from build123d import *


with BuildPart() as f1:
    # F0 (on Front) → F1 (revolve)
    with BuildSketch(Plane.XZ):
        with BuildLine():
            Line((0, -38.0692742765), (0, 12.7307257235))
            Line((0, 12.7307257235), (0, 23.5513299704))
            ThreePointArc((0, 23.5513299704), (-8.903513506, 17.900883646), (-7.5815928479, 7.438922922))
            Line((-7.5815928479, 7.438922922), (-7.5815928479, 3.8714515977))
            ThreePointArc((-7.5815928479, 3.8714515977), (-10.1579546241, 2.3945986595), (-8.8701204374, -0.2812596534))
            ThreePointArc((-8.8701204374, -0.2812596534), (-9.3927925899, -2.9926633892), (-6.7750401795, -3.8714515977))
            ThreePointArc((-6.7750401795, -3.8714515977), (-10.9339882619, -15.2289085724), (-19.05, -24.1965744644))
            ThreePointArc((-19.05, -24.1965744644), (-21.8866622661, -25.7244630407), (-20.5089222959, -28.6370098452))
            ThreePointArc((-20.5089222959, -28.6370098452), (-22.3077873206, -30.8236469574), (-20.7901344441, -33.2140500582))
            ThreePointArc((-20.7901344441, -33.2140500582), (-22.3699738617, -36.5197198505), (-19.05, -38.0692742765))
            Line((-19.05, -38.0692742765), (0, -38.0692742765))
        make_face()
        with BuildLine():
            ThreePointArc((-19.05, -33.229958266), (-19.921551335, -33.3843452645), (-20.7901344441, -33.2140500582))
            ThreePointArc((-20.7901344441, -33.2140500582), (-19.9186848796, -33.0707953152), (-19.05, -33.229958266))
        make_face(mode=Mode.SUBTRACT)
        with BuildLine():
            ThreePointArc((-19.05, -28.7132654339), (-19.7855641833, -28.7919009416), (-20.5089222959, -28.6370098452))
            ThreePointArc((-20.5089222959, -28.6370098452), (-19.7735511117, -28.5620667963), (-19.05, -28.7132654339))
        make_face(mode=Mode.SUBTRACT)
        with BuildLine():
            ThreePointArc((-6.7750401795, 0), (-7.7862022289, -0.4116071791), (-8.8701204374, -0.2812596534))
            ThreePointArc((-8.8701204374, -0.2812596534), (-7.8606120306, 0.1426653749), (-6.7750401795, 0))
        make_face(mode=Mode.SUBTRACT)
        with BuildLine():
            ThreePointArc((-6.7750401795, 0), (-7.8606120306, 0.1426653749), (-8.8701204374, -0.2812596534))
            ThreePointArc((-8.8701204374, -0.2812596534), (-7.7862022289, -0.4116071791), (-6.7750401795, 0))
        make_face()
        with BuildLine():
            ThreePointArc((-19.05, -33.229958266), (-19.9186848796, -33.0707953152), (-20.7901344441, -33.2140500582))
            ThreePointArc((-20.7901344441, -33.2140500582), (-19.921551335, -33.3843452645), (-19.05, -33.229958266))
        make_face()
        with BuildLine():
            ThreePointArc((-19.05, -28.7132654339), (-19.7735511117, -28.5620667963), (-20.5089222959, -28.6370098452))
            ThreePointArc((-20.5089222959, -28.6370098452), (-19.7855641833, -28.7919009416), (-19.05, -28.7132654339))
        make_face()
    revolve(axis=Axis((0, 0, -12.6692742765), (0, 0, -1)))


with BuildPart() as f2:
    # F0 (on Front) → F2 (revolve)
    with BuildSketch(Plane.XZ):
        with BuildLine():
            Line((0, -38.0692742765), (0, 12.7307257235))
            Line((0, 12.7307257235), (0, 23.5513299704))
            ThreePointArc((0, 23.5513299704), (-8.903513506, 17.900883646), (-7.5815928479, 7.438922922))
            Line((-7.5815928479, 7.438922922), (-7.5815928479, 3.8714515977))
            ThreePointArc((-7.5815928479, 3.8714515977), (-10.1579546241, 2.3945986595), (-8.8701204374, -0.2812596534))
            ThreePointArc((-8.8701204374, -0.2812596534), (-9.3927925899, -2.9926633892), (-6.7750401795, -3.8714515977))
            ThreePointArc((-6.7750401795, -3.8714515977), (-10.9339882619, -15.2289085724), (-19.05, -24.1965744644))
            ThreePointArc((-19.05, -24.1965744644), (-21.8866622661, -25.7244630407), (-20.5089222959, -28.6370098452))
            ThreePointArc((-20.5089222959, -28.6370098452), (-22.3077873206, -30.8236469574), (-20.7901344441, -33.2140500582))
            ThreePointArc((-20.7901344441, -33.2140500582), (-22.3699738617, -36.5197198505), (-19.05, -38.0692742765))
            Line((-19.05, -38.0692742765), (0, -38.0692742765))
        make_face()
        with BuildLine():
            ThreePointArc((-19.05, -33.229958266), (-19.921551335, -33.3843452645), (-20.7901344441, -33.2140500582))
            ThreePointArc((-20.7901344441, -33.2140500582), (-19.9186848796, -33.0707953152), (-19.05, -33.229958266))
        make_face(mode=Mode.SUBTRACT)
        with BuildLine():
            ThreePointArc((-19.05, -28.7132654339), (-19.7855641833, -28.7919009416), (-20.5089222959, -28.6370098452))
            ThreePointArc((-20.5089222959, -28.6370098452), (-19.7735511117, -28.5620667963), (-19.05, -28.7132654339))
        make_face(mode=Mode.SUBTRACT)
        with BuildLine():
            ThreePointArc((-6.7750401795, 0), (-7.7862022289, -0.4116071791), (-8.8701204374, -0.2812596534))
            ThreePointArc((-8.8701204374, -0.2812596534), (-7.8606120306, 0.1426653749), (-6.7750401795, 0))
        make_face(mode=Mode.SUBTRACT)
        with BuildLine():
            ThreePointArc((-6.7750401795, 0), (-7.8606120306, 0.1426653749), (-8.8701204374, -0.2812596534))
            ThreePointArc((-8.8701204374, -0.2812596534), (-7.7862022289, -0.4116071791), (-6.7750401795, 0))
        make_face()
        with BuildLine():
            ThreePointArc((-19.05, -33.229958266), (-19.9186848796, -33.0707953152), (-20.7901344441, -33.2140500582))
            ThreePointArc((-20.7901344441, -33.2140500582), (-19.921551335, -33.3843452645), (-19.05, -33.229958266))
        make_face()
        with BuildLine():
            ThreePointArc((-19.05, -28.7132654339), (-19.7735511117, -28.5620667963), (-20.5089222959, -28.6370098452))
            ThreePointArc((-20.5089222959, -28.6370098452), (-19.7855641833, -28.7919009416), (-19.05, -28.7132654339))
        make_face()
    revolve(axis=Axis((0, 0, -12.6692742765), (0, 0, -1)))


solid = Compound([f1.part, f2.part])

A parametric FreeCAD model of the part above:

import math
import FreeCAD as App
import Part
import Sketcher
from FreeCAD import Vector
Q = App.Units.Quantity

doc = App.newDocument("Part")
body = doc.addObject("PartDesign::Body", "Body")

# Sketch on XZ plane
sketch1 = body.newObject("Sketcher::SketchObject", "Sketch")
sketch1.AttachmentSupport = (doc.getObject("XZ_Plane"), [""])
sketch1.MapMode = "FlatFace"
sketch1.addGeometry(Part.ArcOfCircle(Part.Circle(Vector(-19.7, -26.5, 0), Vector(0, 0, 1), 2.3), math.radians(75), math.radians(249)), False)
sketch1.addGeometry(Part.ArcOfCircle(Part.Circle(Vector(-19.9, -31, 0), Vector(0, 0, 1), 2.4), math.radians(105), math.radians(248)), False)
sketch1.addGeometry(Part.ArcOfCircle(Part.Circle(Vector(-19.9, -35.6, 0), Vector(0, 0, 1), 2.6), math.radians(109), math.radians(290)), False)
sketch1.addGeometry(Part.LineSegment(Vector(-19.1, -38.1, 0), Vector(0, -38.1, 0)), False)
sketch1.addGeometry(Part.LineSegment(Vector(0, -38.1, 0), Vector(0, 23.6, 0)), False)
sketch1.addGeometry(Part.ArcOfCircle(Part.Circle(Vector(0, 13.7, 0), Vector(0, 0, 1), 9.8), math.radians(90), math.radians(220)), False)
sketch1.addGeometry(Part.LineSegment(Vector(-7.6, 7.4, 0), Vector(-7.6, 3.9, 0)), False)
sketch1.addGeometry(Part.ArcOfCircle(Part.Circle(Vector(-8.1, 1.7, 0), Vector(0, 0, 1), 2.2), math.radians(77), math.radians(249)), False)
sketch1.addGeometry(Part.ArcOfCircle(Part.Circle(Vector(-7.6, -1.9, 0), Vector(0, 0, 1), 2.1), math.radians(128), math.radians(293)), False)
sketch1.addGeometry(Part.ArcOfCircle(Part.Circle(Vector(-38, 1.1, 0), Vector(0, 0, 1), 31.6), math.radians(-53), math.radians(-9)), False)
sketch1.addConstraint(Sketcher.Constraint("Coincident", 0, 2, 1, 1))
sketch1.addConstraint(Sketcher.Constraint("Coincident", 1, 2, 2, 1))
sketch1.addConstraint(Sketcher.Constraint("Coincident", 2, 2, 3, 1))
sketch1.addConstraint(Sketcher.Constraint("Coincident", 3, 2, 4, 1))
sketch1.addConstraint(Sketcher.Constraint("Coincident", 4, 2, 5, 1))
sketch1.addConstraint(Sketcher.Constraint("Coincident", 5, 2, 6, 1))
sketch1.addConstraint(Sketcher.Constraint("Coincident", 6, 2, 7, 1))
sketch1.addConstraint(Sketcher.Constraint("Coincident", 7, 2, 8, 1))
sketch1.addConstraint(Sketcher.Constraint("Coincident", 8, 2, 9, 2))
sketch1.addConstraint(Sketcher.Constraint("Coincident", 9, 1, 0, 1))
sketch1.addConstraint(Sketcher.Constraint("Horizontal", 3))
sketch1.addConstraint(Sketcher.Constraint("Vertical", 4))
sketch1.addConstraint(Sketcher.Constraint("Vertical", 6))
sketch1.addConstraint(Sketcher.Constraint("PointOnObject", 5, 3, -2))
sketch1.addConstraint(Sketcher.Constraint("PointOnObject", 3, 2, -2))
sketch1.addConstraint(Sketcher.Constraint("Vertical", 8, 3, 5, 2))
sketch1.addConstraint(Sketcher.Constraint("Vertical", 2, 2, 9, 1))
sketch1.addConstraint(Sketcher.Constraint("DistanceX", 3, 1, 3, 2, Q("0.75 in")))
sketch1.addConstraint(Sketcher.Constraint("Radius", 0, 2.340171))
sketch1.addConstraint(Sketcher.Constraint("Radius", 2, 2.578929))
sketch1.addConstraint(Sketcher.Constraint("Radius", 5, 9.839939))
sketch1.addConstraint(Sketcher.Constraint("Radius", 7, 2.179651))
sketch1.addConstraint(Sketcher.Constraint("Radius", 9, 31.645649))
sketch1.addConstraint(Sketcher.Constraint("DistanceY", 0, 3, 4, 2, Q("1.96875 in")))
sketch1.addConstraint(Sketcher.Constraint("Radius", 1, 2.412834))
sketch1.addConstraint(Sketcher.Constraint("Radius", 8, 2.097036))
sketch1.addConstraint(Sketcher.Constraint("DistanceY", 1, 3, 7, 3, Q("1.2881998 in")))
sketch1.addConstraint(Sketcher.Constraint("DistanceY", 6, 2, 6, 1, 3.567471))
sketch1.addConstraint(Sketcher.Constraint("DistanceX", 0, 3, 7, 3, 11.5872))
sketch1.addConstraint(Sketcher.Constraint("DistanceX", 1, 3, 8, 3, 12.317901))
sketch1.addConstraint(Sketcher.Constraint("DistanceY", 9, 3, 7, 3, 0.617801))
sketch1.addConstraint(Sketcher.Constraint("DistanceY", 4, 1, 4, 2, 61.620604))
sketch1.addConstraint(Sketcher.Constraint("DistanceY", 0, 3, -1, 1, 26.45492))
sketch1.addConstraint(Sketcher.Constraint("DistanceY", 1, 3, -1, 1, 30.971612))
sketch1.addConstraint(Sketcher.Constraint("DistanceX", 2, 3, -1, 1, 19.94226))
sketch1.addConstraint(Sketcher.Constraint("DistanceY", 0, 2, -1, 1, 28.63701))
sketch1.addConstraint(Sketcher.Constraint("DistanceX", 7, 2, -1, 1, 8.87012))
revolution = body.newObject("PartDesign::Revolution", "Revolution")
revolution.Profile = sketch1
revolution.ReferenceAxis = (sketch1, ["V_Axis"])
revolution.Angle = 360
body2 = doc.addObject("PartDesign::Body", "Body001")

# Sketch on XZ plane
sketch2 = body2.newObject("Sketcher::SketchObject", "Sketch001")
sketch2.AttachmentSupport = (doc.getObject("XZ_Plane001"), [""])
sketch2.MapMode = "FlatFace"
sketch2.addGeometry(Part.ArcOfCircle(Part.Circle(Vector(-19.7, -26.5, 0), Vector(0, 0, 1), 2.3), math.radians(75), math.radians(249)), False)
sketch2.addGeometry(Part.ArcOfCircle(Part.Circle(Vector(-19.9, -31, 0), Vector(0, 0, 1), 2.4), math.radians(105), math.radians(248)), False)
sketch2.addGeometry(Part.ArcOfCircle(Part.Circle(Vector(-19.9, -35.6, 0), Vector(0, 0, 1), 2.6), math.radians(109), math.radians(290)), False)
sketch2.addGeometry(Part.LineSegment(Vector(-19.1, -38.1, 0), Vector(0, -38.1, 0)), False)
sketch2.addGeometry(Part.LineSegment(Vector(0, -38.1, 0), Vector(0, 23.6, 0)), False)
sketch2.addGeometry(Part.ArcOfCircle(Part.Circle(Vector(0, 13.7, 0), Vector(0, 0, 1), 9.8), math.radians(90), math.radians(220)), False)
sketch2.addGeometry(Part.LineSegment(Vector(-7.6, 7.4, 0), Vector(-7.6, 3.9, 0)), False)
sketch2.addGeometry(Part.ArcOfCircle(Part.Circle(Vector(-8.1, 1.7, 0), Vector(0, 0, 1), 2.2), math.radians(77), math.radians(249)), False)
sketch2.addGeometry(Part.ArcOfCircle(Part.Circle(Vector(-7.6, -1.9, 0), Vector(0, 0, 1), 2.1), math.radians(128), math.radians(293)), False)
sketch2.addGeometry(Part.ArcOfCircle(Part.Circle(Vector(-38, 1.1, 0), Vector(0, 0, 1), 31.6), math.radians(-53), math.radians(-9)), False)
sketch2.addConstraint(Sketcher.Constraint("Coincident", 0, 2, 1, 1))
sketch2.addConstraint(Sketcher.Constraint("Coincident", 1, 2, 2, 1))
sketch2.addConstraint(Sketcher.Constraint("Coincident", 2, 2, 3, 1))
sketch2.addConstraint(Sketcher.Constraint("Coincident", 3, 2, 4, 1))
sketch2.addConstraint(Sketcher.Constraint("Coincident", 4, 2, 5, 1))
sketch2.addConstraint(Sketcher.Constraint("Coincident", 5, 2, 6, 1))
sketch2.addConstraint(Sketcher.Constraint("Coincident", 6, 2, 7, 1))
sketch2.addConstraint(Sketcher.Constraint("Coincident", 7, 2, 8, 1))
sketch2.addConstraint(Sketcher.Constraint("Coincident", 8, 2, 9, 2))
sketch2.addConstraint(Sketcher.Constraint("Coincident", 9, 1, 0, 1))
sketch2.addConstraint(Sketcher.Constraint("Horizontal", 3))
sketch2.addConstraint(Sketcher.Constraint("Vertical", 4))
sketch2.addConstraint(Sketcher.Constraint("Vertical", 6))
sketch2.addConstraint(Sketcher.Constraint("PointOnObject", 5, 3, -2))
sketch2.addConstraint(Sketcher.Constraint("PointOnObject", 3, 2, -2))
sketch2.addConstraint(Sketcher.Constraint("Vertical", 8, 3, 5, 2))
sketch2.addConstraint(Sketcher.Constraint("Vertical", 2, 2, 9, 1))
sketch2.addConstraint(Sketcher.Constraint("DistanceX", 3, 1, 3, 2, Q("0.75 in")))
sketch2.addConstraint(Sketcher.Constraint("Radius", 0, 2.340171))
sketch2.addConstraint(Sketcher.Constraint("Radius", 2, 2.578929))
sketch2.addConstraint(Sketcher.Constraint("Radius", 5, 9.839939))
sketch2.addConstraint(Sketcher.Constraint("Radius", 7, 2.179651))
sketch2.addConstraint(Sketcher.Constraint("Radius", 9, 31.645649))
sketch2.addConstraint(Sketcher.Constraint("DistanceY", 0, 3, 4, 2, Q("1.96875 in")))
sketch2.addConstraint(Sketcher.Constraint("Radius", 1, 2.412834))
sketch2.addConstraint(Sketcher.Constraint("Radius", 8, 2.097036))
sketch2.addConstraint(Sketcher.Constraint("DistanceY", 1, 3, 7, 3, Q("1.2881998 in")))
sketch2.addConstraint(Sketcher.Constraint("DistanceY", 6, 2, 6, 1, 3.567471))
sketch2.addConstraint(Sketcher.Constraint("DistanceX", 0, 3, 7, 3, 11.5872))
sketch2.addConstraint(Sketcher.Constraint("DistanceX", 1, 3, 8, 3, 12.317901))
sketch2.addConstraint(Sketcher.Constraint("DistanceY", 9, 3, 7, 3, 0.617801))
sketch2.addConstraint(Sketcher.Constraint("DistanceY", 4, 1, 4, 2, 61.620604))
sketch2.addConstraint(Sketcher.Constraint("DistanceY", 0, 3, -1, 1, 26.45492))
sketch2.addConstraint(Sketcher.Constraint("DistanceY", 1, 3, -1, 1, 30.971612))
sketch2.addConstraint(Sketcher.Constraint("DistanceX", 2, 3, -1, 1, 19.94226))
sketch2.addConstraint(Sketcher.Constraint("DistanceY", 0, 2, -1, 1, 28.63701))
sketch2.addConstraint(Sketcher.Constraint("DistanceX", 7, 2, -1, 1, 8.87012))
revolution2 = body2.newObject("PartDesign::Revolution", "Revolution001")
revolution2.Profile = sketch2
revolution2.ReferenceAxis = (sketch2, ["V_Axis"])
revolution2.Angle = 360

doc.recompute()
